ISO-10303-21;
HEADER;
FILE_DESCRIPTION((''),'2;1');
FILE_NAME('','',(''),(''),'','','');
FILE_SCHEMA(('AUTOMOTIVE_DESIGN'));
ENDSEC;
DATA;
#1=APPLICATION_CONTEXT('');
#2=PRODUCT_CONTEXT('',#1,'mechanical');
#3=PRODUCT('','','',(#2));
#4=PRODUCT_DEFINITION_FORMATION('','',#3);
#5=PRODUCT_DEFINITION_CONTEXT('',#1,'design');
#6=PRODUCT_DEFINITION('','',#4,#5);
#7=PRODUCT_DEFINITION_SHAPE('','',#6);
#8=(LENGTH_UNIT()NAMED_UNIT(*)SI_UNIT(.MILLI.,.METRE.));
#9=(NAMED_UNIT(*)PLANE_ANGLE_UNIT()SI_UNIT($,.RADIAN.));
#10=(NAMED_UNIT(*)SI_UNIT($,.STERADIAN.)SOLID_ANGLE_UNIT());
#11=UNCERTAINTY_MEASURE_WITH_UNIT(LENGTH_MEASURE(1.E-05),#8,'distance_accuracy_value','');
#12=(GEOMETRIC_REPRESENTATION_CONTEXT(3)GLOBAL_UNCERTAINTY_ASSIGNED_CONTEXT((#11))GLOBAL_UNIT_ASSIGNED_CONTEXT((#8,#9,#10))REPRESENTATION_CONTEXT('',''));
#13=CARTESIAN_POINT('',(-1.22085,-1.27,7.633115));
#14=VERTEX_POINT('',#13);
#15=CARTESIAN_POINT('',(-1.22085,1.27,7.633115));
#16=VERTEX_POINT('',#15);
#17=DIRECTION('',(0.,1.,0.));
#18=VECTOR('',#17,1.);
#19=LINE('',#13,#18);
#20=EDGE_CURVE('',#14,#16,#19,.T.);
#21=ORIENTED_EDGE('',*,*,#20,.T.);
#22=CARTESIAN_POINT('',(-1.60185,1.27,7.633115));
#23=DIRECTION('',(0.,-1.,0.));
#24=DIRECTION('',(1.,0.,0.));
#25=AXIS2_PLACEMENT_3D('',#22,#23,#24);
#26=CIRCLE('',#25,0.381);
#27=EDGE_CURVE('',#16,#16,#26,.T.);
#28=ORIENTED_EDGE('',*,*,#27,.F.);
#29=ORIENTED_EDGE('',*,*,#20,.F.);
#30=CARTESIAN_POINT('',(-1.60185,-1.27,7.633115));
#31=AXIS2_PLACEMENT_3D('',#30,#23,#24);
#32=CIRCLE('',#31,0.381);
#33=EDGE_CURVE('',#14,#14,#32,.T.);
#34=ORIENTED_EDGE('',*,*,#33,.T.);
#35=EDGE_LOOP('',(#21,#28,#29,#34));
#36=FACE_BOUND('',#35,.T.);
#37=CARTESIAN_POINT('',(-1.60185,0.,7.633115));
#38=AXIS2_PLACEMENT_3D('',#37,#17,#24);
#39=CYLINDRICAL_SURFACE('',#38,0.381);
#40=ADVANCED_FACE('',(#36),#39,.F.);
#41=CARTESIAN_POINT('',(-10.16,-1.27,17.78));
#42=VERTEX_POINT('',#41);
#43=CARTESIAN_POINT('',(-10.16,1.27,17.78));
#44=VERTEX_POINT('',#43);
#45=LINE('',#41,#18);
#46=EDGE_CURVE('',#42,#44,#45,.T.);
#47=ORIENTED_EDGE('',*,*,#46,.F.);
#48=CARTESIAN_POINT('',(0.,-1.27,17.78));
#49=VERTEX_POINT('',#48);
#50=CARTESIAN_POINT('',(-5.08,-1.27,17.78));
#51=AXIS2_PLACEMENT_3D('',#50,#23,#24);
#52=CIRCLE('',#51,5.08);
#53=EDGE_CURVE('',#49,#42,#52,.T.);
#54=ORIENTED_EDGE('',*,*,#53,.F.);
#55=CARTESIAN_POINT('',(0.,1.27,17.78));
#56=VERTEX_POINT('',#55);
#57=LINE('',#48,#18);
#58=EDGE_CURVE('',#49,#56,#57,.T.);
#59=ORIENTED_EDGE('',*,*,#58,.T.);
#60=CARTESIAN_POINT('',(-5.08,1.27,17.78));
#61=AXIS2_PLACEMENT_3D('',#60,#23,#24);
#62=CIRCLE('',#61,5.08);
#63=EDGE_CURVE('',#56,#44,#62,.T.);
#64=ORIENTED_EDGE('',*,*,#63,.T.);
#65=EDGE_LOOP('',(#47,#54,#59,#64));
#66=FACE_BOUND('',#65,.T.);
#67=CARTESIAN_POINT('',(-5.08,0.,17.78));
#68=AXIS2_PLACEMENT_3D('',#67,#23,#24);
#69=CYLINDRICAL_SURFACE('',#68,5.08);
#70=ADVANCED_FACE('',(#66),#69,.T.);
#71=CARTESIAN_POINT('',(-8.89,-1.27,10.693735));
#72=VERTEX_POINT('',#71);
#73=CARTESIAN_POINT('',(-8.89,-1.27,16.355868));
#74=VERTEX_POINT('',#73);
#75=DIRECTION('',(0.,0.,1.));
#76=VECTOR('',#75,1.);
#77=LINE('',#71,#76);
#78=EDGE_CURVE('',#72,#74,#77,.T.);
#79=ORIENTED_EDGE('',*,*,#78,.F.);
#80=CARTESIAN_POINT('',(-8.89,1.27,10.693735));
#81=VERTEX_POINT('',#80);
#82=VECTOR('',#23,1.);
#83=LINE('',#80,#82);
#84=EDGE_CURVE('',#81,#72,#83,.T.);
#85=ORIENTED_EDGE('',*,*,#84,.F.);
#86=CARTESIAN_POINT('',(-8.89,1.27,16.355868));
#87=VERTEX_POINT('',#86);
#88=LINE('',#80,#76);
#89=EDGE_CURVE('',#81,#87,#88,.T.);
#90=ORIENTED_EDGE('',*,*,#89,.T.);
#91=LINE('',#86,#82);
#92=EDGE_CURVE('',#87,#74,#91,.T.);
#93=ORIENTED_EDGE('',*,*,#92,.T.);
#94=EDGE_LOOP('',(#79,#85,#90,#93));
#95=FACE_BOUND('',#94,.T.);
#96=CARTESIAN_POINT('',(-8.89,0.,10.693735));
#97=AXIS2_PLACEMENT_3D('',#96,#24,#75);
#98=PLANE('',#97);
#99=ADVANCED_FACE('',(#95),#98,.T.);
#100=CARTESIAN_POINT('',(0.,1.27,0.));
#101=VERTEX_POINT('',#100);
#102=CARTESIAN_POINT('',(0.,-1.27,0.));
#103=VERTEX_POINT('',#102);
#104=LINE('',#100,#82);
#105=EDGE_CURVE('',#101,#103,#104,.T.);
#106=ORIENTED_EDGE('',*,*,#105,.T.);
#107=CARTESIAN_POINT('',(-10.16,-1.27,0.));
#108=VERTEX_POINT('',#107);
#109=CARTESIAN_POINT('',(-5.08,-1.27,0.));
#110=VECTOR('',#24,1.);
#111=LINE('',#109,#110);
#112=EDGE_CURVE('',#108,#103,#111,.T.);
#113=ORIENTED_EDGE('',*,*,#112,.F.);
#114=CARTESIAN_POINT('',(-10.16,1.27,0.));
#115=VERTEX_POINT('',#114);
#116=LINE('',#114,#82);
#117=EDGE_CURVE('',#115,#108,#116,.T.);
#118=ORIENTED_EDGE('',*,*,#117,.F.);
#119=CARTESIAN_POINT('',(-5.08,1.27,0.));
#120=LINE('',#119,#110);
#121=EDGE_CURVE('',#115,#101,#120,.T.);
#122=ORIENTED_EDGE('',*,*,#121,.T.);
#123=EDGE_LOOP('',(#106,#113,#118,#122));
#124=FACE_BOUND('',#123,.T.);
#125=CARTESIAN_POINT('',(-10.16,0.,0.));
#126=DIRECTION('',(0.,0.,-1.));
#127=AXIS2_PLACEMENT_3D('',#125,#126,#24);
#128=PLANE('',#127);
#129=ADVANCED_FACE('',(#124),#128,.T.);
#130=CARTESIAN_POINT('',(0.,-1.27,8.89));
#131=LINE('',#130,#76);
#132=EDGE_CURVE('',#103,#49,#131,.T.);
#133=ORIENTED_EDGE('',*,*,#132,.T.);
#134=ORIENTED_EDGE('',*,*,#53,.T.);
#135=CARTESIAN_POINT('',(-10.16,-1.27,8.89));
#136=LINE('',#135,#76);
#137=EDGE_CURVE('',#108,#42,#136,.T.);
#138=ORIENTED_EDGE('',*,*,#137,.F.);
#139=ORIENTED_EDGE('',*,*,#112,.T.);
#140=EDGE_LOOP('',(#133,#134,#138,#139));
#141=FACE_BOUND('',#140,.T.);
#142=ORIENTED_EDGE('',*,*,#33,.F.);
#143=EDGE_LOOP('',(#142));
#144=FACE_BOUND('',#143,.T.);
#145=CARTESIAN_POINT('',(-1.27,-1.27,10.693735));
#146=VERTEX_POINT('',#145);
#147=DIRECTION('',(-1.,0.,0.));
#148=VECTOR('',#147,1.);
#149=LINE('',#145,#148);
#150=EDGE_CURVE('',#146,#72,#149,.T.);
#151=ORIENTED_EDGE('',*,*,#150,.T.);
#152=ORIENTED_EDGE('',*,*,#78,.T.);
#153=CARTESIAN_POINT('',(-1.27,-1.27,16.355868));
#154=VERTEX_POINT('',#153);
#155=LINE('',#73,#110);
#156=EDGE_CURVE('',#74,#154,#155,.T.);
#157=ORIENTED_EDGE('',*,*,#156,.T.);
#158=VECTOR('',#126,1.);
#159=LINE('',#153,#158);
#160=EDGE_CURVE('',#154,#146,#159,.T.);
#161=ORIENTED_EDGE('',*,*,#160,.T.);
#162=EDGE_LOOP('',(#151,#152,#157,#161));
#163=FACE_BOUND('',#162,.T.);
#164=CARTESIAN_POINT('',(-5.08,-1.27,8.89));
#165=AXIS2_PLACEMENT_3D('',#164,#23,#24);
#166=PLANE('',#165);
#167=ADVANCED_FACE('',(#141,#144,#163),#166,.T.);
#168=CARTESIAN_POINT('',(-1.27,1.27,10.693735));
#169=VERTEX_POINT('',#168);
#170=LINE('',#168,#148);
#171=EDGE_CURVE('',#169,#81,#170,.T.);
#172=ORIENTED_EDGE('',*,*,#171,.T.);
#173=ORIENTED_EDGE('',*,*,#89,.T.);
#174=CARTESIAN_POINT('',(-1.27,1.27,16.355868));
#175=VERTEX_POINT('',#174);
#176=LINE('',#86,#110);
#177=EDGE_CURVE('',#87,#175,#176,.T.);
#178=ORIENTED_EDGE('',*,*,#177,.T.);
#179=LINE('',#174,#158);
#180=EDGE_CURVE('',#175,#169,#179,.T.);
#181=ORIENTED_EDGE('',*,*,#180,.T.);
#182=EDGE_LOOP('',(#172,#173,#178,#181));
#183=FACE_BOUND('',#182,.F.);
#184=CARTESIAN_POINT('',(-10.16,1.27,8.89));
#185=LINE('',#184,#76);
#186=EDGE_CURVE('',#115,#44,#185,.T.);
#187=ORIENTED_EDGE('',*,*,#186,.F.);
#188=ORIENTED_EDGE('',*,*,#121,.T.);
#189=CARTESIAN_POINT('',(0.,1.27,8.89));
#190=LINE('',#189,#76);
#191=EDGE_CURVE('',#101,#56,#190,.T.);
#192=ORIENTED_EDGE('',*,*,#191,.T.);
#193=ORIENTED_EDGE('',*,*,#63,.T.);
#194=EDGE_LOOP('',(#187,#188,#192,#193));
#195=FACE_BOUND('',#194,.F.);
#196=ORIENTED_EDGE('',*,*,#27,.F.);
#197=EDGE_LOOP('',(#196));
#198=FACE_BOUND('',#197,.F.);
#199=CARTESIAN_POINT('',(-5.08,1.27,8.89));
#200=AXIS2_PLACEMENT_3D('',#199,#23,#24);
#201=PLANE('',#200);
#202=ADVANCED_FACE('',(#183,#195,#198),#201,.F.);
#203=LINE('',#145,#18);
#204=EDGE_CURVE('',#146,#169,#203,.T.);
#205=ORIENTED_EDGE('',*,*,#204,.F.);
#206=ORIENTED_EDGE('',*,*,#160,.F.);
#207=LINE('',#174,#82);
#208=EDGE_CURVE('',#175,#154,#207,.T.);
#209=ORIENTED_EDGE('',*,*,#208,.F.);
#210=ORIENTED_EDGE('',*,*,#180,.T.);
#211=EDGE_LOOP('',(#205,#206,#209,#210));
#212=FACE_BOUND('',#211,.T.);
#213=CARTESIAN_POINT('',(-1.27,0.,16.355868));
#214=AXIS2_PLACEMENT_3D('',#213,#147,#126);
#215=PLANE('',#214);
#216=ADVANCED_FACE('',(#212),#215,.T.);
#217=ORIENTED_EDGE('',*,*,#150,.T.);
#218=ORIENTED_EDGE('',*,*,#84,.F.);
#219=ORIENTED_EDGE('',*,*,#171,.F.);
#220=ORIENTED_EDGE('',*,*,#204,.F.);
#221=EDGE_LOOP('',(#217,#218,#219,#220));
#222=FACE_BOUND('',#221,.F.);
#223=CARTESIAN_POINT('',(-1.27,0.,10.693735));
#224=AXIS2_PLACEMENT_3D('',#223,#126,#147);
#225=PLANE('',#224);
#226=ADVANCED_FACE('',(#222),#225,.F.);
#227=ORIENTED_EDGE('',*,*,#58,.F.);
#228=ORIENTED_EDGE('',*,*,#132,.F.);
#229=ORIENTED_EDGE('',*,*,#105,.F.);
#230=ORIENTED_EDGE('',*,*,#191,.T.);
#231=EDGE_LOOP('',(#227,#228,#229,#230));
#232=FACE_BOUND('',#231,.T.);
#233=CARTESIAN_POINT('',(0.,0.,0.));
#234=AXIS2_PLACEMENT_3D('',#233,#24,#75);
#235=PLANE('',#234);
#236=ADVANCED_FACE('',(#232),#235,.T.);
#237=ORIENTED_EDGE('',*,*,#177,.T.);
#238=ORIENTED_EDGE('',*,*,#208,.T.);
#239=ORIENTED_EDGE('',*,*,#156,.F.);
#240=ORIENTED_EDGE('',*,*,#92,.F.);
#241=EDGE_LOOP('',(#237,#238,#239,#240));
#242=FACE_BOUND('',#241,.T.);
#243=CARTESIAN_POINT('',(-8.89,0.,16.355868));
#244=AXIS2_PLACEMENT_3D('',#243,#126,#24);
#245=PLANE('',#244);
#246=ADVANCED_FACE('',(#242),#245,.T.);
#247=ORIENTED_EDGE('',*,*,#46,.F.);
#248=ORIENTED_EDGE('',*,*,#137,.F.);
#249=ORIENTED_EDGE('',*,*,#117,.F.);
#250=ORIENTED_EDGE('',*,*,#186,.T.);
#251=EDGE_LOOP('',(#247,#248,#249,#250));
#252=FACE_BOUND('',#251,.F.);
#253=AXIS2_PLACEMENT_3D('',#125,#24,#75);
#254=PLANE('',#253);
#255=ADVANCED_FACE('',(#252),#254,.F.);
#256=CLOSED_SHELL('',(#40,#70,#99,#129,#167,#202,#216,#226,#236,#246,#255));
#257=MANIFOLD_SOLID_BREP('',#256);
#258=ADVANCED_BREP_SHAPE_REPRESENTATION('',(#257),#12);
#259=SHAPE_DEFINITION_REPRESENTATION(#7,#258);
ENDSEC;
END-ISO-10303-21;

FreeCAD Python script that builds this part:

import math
import FreeCAD as App
import Part
import Sketcher
from FreeCAD import Vector
Q = App.Units.Quantity

doc = App.newDocument("Part")
body = doc.addObject("PartDesign::Body", "Body")

# Sketch on XZ plane
sketch1 = body.newObject("Sketcher::SketchObject", "Sketch")
sketch1.AttachmentSupport = (doc.getObject("XZ_Plane"), [""])
sketch1.MapMode = "FlatFace"
sketch1.addGeometry([
    Part.LineSegment(Vector(-10.16, 17.78, 0), Vector(-10.16, 0, 0)),  # 0
    Part.LineSegment(Vector(-10.16, 0, 0), Vector(0, 0, 0)),  # 1
    Part.LineSegment(Vector(0, 0, 0), Vector(0, 17.78, 0)),  # 2
    Part.ArcOfCircle(Part.Circle(Vector(-5.08, 17.78, 0), Vector(0, 0, 1), 5.08), math.radians(0), math.radians(180)),  # 3
    Part.Circle(Vector(-1.60185, 7.633115, 0), Vector(0, 0, 1), 0.381),  # 4
    Part.LineSegment(Vector(-8.89, 10.693735, 0), Vector(-8.89, 16.355868, 0)),  # 5
    Part.LineSegment(Vector(-8.89, 16.355868, 0), Vector(-1.27, 16.355868, 0)),  # 6
    Part.LineSegment(Vector(-1.27, 16.355868, 0), Vector(-1.27, 10.693735, 0)),  # 7
    Part.LineSegment(Vector(-1.27, 10.693735, 0), Vector(-8.89, 10.693735, 0)),  # 8
], False)
sketch1.addConstraint([
    Sketcher.Constraint("Coincident", 0, 2, 1, 1),
    Sketcher.Constraint("Coincident", 1, 2, 2, 1),
    Sketcher.Constraint("Tangent", 2, 2, 3, 1),
    Sketcher.Constraint("Tangent", 3, 2, 0, 1),
    Sketcher.Constraint("Coincident", 5, 2, 6, 1),
    Sketcher.Constraint("Coincident", 6, 2, 7, 1),
    Sketcher.Constraint("Coincident", 7, 2, 8, 1),
    Sketcher.Constraint("Coincident", 8, 2, 5, 1),
    Sketcher.Constraint("Vertical", 0),
    Sketcher.Constraint("Horizontal", 1),
    Sketcher.Constraint("Vertical", 2),
    Sketcher.Constraint("Vertical", 5),
    Sketcher.Constraint("Horizontal", 6),
    Sketcher.Constraint("Vertical", 7),
    Sketcher.Constraint("Horizontal", 8),
    Sketcher.Constraint("Coincident", 1, 2, -1, 1),
    Sketcher.Constraint("Radius", 3, Q("0.2 in")),
    Sketcher.Constraint("Diameter", 4, Q("0.03 in")),
    Sketcher.Constraint("DistanceX", 6, 1, 6, 2, Q("0.3 in")),
    Sketcher.Constraint("DistanceY", 0, 2, 0, 1, Q("0.7 in")),
    Sketcher.Constraint("DistanceX", 5, 2, -1, 1, Q("0.35 in")),
    Sketcher.Constraint("DistanceY", 5, 1, 5, 2, 5.662133),
    Sketcher.Constraint("DistanceX", 4, 3, -1, 1, 1.60185),
    Sketcher.Constraint("DistanceY", -1, 1, 5, 2, 16.355868),
    Sketcher.Constraint("DistanceY", 4, 3, 7, 2, 3.06062),
])
pad1 = body.newObject("PartDesign::Pad", "Pad")
pad1.Profile = sketch1
pad1.Length = Q("0.1 in")
pad1.Midplane = True

doc.recompute()
